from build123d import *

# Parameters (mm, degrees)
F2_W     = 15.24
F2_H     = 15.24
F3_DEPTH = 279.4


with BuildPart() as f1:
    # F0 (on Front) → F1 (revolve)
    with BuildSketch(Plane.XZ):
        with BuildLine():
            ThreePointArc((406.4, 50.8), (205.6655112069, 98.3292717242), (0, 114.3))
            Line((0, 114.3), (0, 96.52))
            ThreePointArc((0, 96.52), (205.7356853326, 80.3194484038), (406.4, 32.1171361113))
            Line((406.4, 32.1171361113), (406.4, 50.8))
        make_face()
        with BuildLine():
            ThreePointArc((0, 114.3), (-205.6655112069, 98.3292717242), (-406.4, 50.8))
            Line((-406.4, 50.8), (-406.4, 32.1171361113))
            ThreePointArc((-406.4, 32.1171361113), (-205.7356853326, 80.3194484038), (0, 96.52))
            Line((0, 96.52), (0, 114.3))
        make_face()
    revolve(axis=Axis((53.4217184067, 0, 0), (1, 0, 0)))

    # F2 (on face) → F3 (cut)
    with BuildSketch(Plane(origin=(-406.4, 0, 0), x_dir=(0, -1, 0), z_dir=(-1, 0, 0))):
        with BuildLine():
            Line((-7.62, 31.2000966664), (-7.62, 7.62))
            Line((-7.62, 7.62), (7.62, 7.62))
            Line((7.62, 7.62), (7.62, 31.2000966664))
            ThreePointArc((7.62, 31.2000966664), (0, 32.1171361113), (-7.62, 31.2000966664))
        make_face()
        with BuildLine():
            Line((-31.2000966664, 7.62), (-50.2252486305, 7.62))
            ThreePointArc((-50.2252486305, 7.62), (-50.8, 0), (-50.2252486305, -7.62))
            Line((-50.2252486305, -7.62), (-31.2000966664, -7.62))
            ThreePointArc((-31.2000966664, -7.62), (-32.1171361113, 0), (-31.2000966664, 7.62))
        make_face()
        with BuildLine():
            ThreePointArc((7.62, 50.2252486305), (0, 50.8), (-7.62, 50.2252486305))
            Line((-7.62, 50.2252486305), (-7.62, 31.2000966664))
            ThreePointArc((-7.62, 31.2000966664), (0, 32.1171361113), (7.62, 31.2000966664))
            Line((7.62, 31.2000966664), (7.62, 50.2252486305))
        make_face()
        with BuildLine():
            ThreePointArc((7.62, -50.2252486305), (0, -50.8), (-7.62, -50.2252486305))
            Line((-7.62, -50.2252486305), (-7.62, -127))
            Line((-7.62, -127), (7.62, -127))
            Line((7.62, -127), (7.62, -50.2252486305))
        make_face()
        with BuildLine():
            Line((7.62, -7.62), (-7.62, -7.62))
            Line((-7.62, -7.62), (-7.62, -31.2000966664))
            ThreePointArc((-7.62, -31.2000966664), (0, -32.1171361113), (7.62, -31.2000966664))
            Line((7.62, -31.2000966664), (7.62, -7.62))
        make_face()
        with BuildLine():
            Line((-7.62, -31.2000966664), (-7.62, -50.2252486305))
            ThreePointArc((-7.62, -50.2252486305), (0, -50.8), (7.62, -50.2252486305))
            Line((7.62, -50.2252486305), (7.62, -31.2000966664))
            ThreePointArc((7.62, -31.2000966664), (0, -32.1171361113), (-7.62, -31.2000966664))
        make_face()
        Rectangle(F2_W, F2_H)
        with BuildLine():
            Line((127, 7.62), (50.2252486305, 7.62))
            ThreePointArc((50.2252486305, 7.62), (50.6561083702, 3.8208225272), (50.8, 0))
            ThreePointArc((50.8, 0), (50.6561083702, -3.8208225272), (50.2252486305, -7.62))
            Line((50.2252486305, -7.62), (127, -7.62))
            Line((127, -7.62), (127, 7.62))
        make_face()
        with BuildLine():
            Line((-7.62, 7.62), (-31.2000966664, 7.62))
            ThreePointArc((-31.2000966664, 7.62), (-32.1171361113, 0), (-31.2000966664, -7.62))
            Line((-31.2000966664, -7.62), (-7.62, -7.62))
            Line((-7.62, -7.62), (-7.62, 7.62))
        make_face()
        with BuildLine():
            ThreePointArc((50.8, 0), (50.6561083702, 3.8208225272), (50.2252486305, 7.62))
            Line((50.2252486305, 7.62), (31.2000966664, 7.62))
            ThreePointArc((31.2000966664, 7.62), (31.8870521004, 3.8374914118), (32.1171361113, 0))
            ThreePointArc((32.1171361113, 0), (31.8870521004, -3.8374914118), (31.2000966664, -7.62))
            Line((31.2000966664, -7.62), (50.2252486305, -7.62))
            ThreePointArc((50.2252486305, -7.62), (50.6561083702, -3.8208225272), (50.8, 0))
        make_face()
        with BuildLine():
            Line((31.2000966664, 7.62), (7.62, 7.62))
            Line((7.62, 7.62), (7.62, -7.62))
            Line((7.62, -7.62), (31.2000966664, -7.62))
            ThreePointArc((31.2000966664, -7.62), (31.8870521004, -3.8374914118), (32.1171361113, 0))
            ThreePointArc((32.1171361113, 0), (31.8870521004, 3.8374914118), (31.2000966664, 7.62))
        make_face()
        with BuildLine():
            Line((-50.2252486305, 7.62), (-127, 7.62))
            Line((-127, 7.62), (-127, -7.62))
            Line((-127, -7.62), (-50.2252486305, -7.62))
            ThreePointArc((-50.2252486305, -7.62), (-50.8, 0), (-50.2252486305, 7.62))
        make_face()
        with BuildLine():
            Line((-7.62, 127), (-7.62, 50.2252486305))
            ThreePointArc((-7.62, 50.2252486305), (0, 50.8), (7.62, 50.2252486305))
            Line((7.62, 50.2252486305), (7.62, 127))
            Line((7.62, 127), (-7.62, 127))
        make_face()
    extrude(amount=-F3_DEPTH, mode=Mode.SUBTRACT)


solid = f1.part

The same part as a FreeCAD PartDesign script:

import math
import FreeCAD as App
import Part
import Sketcher
from FreeCAD import Vector
Q = App.Units.Quantity


def add_polygon(sketch, points):
    """Adds a closed chain of lines whose ends are joined by coincident constraints."""
    first, n = sketch.GeometryCount, len(points)
    for a, b in zip(points, points[1:] + points[:1]):
        sketch.addGeometry(Part.LineSegment(App.Vector(*a, 0), App.Vector(*b, 0)), False)
    for i in range(n):
        sketch.addConstraint(Sketcher.Constraint("Coincident", first + i, 2, first + (i + 1) % n, 1))

doc = App.newDocument("Part")
body = doc.addObject("PartDesign::Body", "Body")

# Sketch on XZ plane
sketch1 = body.newObject("Sketcher::SketchObject", "Sketch")
sketch1.AttachmentSupport = (doc.getObject("XZ_Plane"), [""])
sketch1.MapMode = "FlatFace"
sketch1.addGeometry(Part.ArcOfCircle(Part.Circle(Vector(0, -1218, 0), Vector(0, 0, 1), 1332), math.radians(72), math.radians(108)), False)
sketch1.addGeometry(Part.LineSegment(Vector(-406, 51, 0), Vector(-406, 32, 0)), False)
sketch1.addGeometry(Part.ArcOfCircle(Part.Circle(Vector(0, -1218, 0), Vector(0, 0, 1), 1314), math.radians(72), math.radians(108)), False)
sketch1.addGeometry(Part.LineSegment(Vector(406, 32, 0), Vector(406, 51, 0)), False)
sketch1.addConstraint(Sketcher.Constraint("Coincident", 0, 2, 1, 1))
sketch1.addConstraint(Sketcher.Constraint("Coincident", 1, 2, 2, 2))
sketch1.addConstraint(Sketcher.Constraint("Coincident", 2, 1, 3, 1))
sketch1.addConstraint(Sketcher.Constraint("Coincident", 3, 2, 0, 1))
sketch1.addConstraint(Sketcher.Constraint("Vertical", 1))
sketch1.addConstraint(Sketcher.Constraint("Vertical", 3))
sketch1.addConstraint(Sketcher.Constraint("Coincident", 2, 3, 0, 3))
sketch1.addConstraint(Sketcher.Constraint("PointOnObject", 0, 3, -2))
sketch1.addConstraint(Sketcher.Constraint("Equal", 1, 3))
sketch1.addConstraint(Sketcher.Constraint("Radius", 0, Q("52.45 in")))
sketch1.addConstraint(Sketcher.Constraint("Radius", 2, Q("51.75 in")))
sketch1.addConstraint(Sketcher.Constraint("DistanceX", 1, 2, -1, 1, Q("16 in")))
sketch1.addConstraint(Sketcher.Constraint("DistanceY", -1, 1, 3, 2, Q("2 in")))
revolution = body.newObject("PartDesign::Revolution", "Revolution")
revolution.Profile = sketch1
revolution.ReferenceAxis = (sketch1, ["H_Axis"])
revolution.Angle = 360

# Sketch on YZ plane
sketch2 = body.newObject("Sketcher::SketchObject", "Sketch001")
sketch2.AttachmentSupport = (doc.getObject("YZ_Plane"), [""])
sketch2.MapMode = "FlatFace"
sketch2.AttachmentOffset = App.Placement(Vector(0, 0, -16 * 25.4), App.Rotation())
add_polygon(sketch2, [(8, 8), (127, 8), (127, -8), (8, -8), (8, -127), (-8, -127), (-8, -8), (-127, -8), (-127, 8), (-8, 8), (-8, 127), (8, 127)])  # lines 0-11
sketch2.addConstraint(Sketcher.Constraint("Horizontal", 0))
sketch2.addConstraint(Sketcher.Constraint("Vertical", 1))
sketch2.addConstraint(Sketcher.Constraint("Horizontal", 2))
sketch2.addConstraint(Sketcher.Constraint("Vertical", 3))
sketch2.addConstraint(Sketcher.Constraint("Horizontal", 4))
sketch2.addConstraint(Sketcher.Constraint("Vertical", 5))
sketch2.addConstraint(Sketcher.Constraint("Horizontal", 6))
sketch2.addConstraint(Sketcher.Constraint("Vertical", 7))
sketch2.addConstraint(Sketcher.Constraint("Horizontal", 8))
sketch2.addConstraint(Sketcher.Constraint("Vertical", 9))
sketch2.addConstraint(Sketcher.Constraint("Horizontal", 10))
sketch2.addConstraint(Sketcher.Constraint("Vertical", 11))
sketch2.addConstraint(Sketcher.Constraint("Symmetric", 0, 2, 6, 2, -1, 1))
sketch2.addConstraint(Sketcher.Constraint("Symmetric", 2, 2, 8, 2, -1, 1))
sketch2.addConstraint(Sketcher.Constraint("Symmetric", 4, 2, 10, 2, -1, 1))
sketch2.addConstraint(Sketcher.Constraint("Symmetric", 2, 2, 5, 2, -2))
sketch2.addConstraint(Sketcher.Constraint("Equal", 10, 1))
sketch2.addConstraint(Sketcher.Constraint("Equal", 8, 3))
sketch2.addConstraint(Sketcher.Constraint("DistanceX", 0, 1, 0, 2, Q("4.7 in")))
sketch2.addConstraint(Sketcher.Constraint("DistanceX", 4, 2, 4, 1, Q("0.6 in")))
pocket1 = body.newObject("PartDesign::Pocket", "Pocket")
pocket1.Profile = sketch2
pocket1.Length = Q("11 in")
pocket1.Reversed = True

doc.recompute()
